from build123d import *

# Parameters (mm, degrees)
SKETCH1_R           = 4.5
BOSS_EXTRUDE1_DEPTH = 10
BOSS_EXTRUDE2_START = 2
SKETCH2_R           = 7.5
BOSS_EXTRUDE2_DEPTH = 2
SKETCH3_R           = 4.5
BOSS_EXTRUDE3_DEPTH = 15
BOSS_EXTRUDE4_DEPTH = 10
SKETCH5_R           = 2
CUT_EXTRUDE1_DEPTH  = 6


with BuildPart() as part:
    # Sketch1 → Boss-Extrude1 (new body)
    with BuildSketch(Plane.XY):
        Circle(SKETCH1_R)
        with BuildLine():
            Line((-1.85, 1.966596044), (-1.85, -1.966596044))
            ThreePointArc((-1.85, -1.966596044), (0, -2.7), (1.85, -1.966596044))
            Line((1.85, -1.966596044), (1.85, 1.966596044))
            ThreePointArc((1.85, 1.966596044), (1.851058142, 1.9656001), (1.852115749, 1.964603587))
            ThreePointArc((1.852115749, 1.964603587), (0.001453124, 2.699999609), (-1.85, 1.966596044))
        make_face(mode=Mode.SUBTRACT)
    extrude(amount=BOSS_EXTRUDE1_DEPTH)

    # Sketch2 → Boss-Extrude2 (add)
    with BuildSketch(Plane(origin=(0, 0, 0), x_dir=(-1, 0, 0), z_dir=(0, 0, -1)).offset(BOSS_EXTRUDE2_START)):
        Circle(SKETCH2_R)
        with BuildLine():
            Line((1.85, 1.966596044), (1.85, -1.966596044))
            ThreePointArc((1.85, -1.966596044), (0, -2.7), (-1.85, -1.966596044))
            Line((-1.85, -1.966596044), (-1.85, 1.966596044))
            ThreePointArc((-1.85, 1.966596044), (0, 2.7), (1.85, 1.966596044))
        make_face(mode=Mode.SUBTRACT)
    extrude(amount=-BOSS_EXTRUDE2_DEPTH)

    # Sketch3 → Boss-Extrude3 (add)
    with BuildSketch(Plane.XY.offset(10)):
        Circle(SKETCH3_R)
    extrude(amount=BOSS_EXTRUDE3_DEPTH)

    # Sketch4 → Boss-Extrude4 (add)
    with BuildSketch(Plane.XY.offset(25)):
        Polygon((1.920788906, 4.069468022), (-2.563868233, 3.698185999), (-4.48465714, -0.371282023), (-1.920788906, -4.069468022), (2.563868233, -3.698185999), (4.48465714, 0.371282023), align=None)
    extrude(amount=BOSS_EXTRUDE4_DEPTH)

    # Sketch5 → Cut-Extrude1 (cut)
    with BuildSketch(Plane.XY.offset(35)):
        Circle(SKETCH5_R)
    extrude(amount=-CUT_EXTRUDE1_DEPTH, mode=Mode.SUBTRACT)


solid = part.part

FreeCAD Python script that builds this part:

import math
import FreeCAD as App
import Part
import Sketcher

V = App.Vector
Q = App.Units.Quantity

doc = App.newDocument("Part")
params = doc.addObject("Spreadsheet::Sheet", "Params")
for row, (alias, value) in enumerate([
    ("sketch1_diameter", "9 mm"),
    ("sketch1_radius", "2.7 mm"),
    ("pad1_length", "10 mm"),
    ("sketch2_diameter", "15 mm"),
    ("sketch2_radius", "2.7 mm"),
    ("pad2_length", "2 mm"),
    ("sketch3_diameter", "9 mm"),
    ("pad3_length", "15 mm"),
    ("sketch4_length", "4.5 mm"),
    ("pad4_length", "10 mm"),
    ("sketch5_diameter", "4 mm"),
    ("pocket1_length", "6 mm"),
], start=1):
    params.set(f"A{row}", alias)
    params.set(f"B{row}", "=" + value)
    params.setAlias(f"B{row}", alias)

body = doc.addObject("PartDesign::Body", "Body")

# Sketch on XY plane
sketch1 = body.newObject("Sketcher::SketchObject", "Sketch")
sketch1.AttachmentSupport = (doc.getObject("XY_Plane"), [""])
sketch1.MapMode = "FlatFace"
sketch1.addGeometry([
    Part.Circle(V(0, 0, 0), V(0, 0, 1), 4.5),  # 0
    Part.LineSegment(V(-1.9, -2, 0), V(-1.9, 2, 0)),  # 1
    Part.ArcOfCircle(Part.Circle(V(0, 0, 0), V(0, 0, 1), 2.7), math.radians(47), math.radians(133)),  # 2
    Part.LineSegment(V(1.9, 2, 0), V(1.9, -2, 0)),  # 3
    Part.ArcOfCircle(Part.Circle(V(0, 0, 0), V(0, 0, 1), 2.7), math.radians(-133), math.radians(-47)),  # 4
], False)
sketch1.addConstraint([
    Sketcher.Constraint("Coincident", 1, 2, 2, 2),
    Sketcher.Constraint("Coincident", 2, 1, 3, 1),
    Sketcher.Constraint("Coincident", 3, 2, 4, 2),
    Sketcher.Constraint("Coincident", 4, 1, 1, 1),
    Sketcher.Constraint("Vertical", 1),
    Sketcher.Constraint("Vertical", 3),
    Sketcher.Constraint("Coincident", 0, 3, -1, 1),
    Sketcher.Constraint("Coincident", 2, 3, -1, 1),
    Sketcher.Constraint("Coincident", 4, 3, -1, 1),
    Sketcher.Constraint("Equal", 2, 4),
    Sketcher.Constraint("Horizontal", 1, 2, 2, 1),
    Sketcher.Constraint("Diameter", 0, Q("9 mm")),
    Sketcher.Constraint("Radius", 2, Q("2.7 mm")),
    Sketcher.Constraint("DistanceX", 1, 2, 2, 1, Q("3.7 mm")),
])
sketch1.setExpression("Constraints[11]", "Params.sketch1_diameter")
sketch1.setExpression("Constraints[12]", "Params.sketch1_radius")
pad1 = body.newObject("PartDesign::Pad", "Pad")
pad1.Profile = sketch1
pad1.setExpression("Length", "Params.pad1_length")

# Sketch on XY plane
sketch2 = body.newObject("Sketcher::SketchObject", "Sketch001")
sketch2.AttachmentSupport = (doc.getObject("XY_Plane"), [""])
sketch2.MapMode = "FlatFace"
sketch2.AttachmentOffset = App.Placement(V(0, 0, -2), App.Rotation())
sketch2.addGeometry([
    Part.Circle(V(0, 0, 0), V(0, 0, 1), 7.5),  # 0
    Part.ArcOfCircle(Part.Circle(V(0, 0, 0), V(0, 0, 1), 2.7), math.radians(47), math.radians(133)),  # 1
    Part.LineSegment(V(-1.9, 2, 0), V(-1.9, -2, 0)),  # 2
    Part.ArcOfCircle(Part.Circle(V(0, 0, 0), V(0, 0, 1), 2.7), math.radians(-133), math.radians(-47)),  # 3
    Part.LineSegment(V(1.9, -2, 0), V(1.9, 2, 0)),  # 4
], False)
sketch2.addConstraint([
    Sketcher.Constraint("Coincident", 1, 2, 2, 1),
    Sketcher.Constraint("Coincident", 2, 2, 3, 1),
    Sketcher.Constraint("Coincident", 3, 2, 4, 1),
    Sketcher.Constraint("Coincident", 4, 2, 1, 1),
    Sketcher.Constraint("Vertical", 2),
    Sketcher.Constraint("Vertical", 4),
    Sketcher.Constraint("Coincident", 0, 3, -1, 1),
    Sketcher.Constraint("Coincident", 1, 3, -1, 1),
    Sketcher.Constraint("Coincident", 3, 3, -1, 1),
    Sketcher.Constraint("Equal", 1, 3),
    Sketcher.Constraint("Horizontal", 2, 2, 3, 2),
    Sketcher.Constraint("Diameter", 0, Q("15 mm")),
    Sketcher.Constraint("Radius", 1, Q("2.7 mm")),
    Sketcher.Constraint("DistanceX", 2, 2, 3, 2, Q("3.7 mm")),
])
sketch2.setExpression("Constraints[11]", "Params.sketch2_diameter")
sketch2.setExpression("Constraints[12]", "Params.sketch2_radius")
pad2 = body.newObject("PartDesign::Pad", "Pad001")
pad2.Profile = sketch2
pad2.setExpression("Length", "Params.pad2_length")

# Sketch on XY plane
sketch3 = body.newObject("Sketcher::SketchObject", "Sketch002")
sketch3.AttachmentSupport = (doc.getObject("XY_Plane"), [""])
sketch3.MapMode = "FlatFace"
sketch3.AttachmentOffset = App.Placement(V(0, 0, 10), App.Rotation())
sketch3.addGeometry(Part.Circle(V(0, 0, 0), V(0, 0, 1), 4.5), False)
sketch3.addConstraint([
    Sketcher.Constraint("Coincident", 0, 3, -1, 1),
    Sketcher.Constraint("Diameter", 0, Q("9 mm")),
])
sketch3.setExpression("Constraints[1]", "Params.sketch3_diameter")
pad3 = body.newObject("PartDesign::Pad", "Pad002")
pad3.Profile = sketch3
pad3.setExpression("Length", "Params.pad3_length")

# Sketch on XY plane
sketch4 = body.newObject("Sketcher::SketchObject", "Sketch003")
sketch4.AttachmentSupport = (doc.getObject("XY_Plane"), [""])
sketch4.MapMode = "FlatFace"
sketch4.AttachmentOffset = App.Placement(V(0, 0, 25), App.Rotation())
sketch4.addGeometry([
    Part.LineSegment(V(1.9, 4.1, 0), V(-2.6, 3.7, 0)),  # 0
    Part.LineSegment(V(-2.6, 3.7, 0), V(-4.5, -0.4, 0)),  # 1
    Part.LineSegment(V(-4.5, -0.4, 0), V(-1.9, -4.1, 0)),  # 2
    Part.LineSegment(V(-1.9, -4.1, 0), V(2.6, -3.7, 0)),  # 3
    Part.LineSegment(V(2.6, -3.7, 0), V(4.5, 0.4, 0)),  # 4
    Part.LineSegment(V(4.5, 0.4, 0), V(1.9, 4.1, 0)),  # 5
], False)
sketch4.addConstraint([
    Sketcher.Constraint("Coincident", 0, 2, 1, 1),
    Sketcher.Constraint("Coincident", 1, 2, 2, 1),
    Sketcher.Constraint("Coincident", 2, 2, 3, 1),
    Sketcher.Constraint("Coincident", 3, 2, 4, 1),
    Sketcher.Constraint("Coincident", 4, 2, 5, 1),
    Sketcher.Constraint("Coincident", 5, 2, 0, 1),
    Sketcher.Constraint("Symmetric", 0, 2, 3, 2, -1, 1),
    Sketcher.Constraint("Symmetric", 1, 2, 4, 2, -1, 1),
    Sketcher.Constraint("Symmetric", 2, 2, 5, 2, -1, 1),
    Sketcher.Constraint("Equal", 0, 1),
    Sketcher.Constraint("Equal", 1, 2),
    Sketcher.Constraint("Distance", 0, Q("4.5 mm")),
    Sketcher.Constraint("DistanceX", 0, 2, -1, 1, Q("2.563868 mm")),
    Sketcher.Constraint("DistanceX", 2, 2, -1, 1, Q("1.920789 mm")),
    Sketcher.Constraint("DistanceY", 2, 2, -1, 1, Q("4.069468 mm")),
])
sketch4.setExpression("Constraints[11]", "Params.sketch4_length")
pad4 = body.newObject("PartDesign::Pad", "Pad003")
pad4.Profile = sketch4
pad4.setExpression("Length", "Params.pad4_length")

# Sketch on XY plane
sketch5 = body.newObject("Sketcher::SketchObject", "Sketch004")
sketch5.AttachmentSupport = (doc.getObject("XY_Plane"), [""])
sketch5.MapMode = "FlatFace"
sketch5.AttachmentOffset = App.Placement(V(0, 0, 35), App.Rotation())
sketch5.addGeometry(Part.Circle(V(0, 0, 0), V(0, 0, 1), 2), False)
sketch5.addConstraint([
    Sketcher.Constraint("Coincident", 0, 3, -1, 1),
    Sketcher.Constraint("Diameter", 0, Q("4 mm")),
])
sketch5.setExpression("Constraints[1]", "Params.sketch5_diameter")
pocket1 = body.newObject("PartDesign::Pocket", "Pocket")
pocket1.Profile = sketch5
pocket1.setExpression("Length", "Params.pocket1_length")

doc.recompute()
